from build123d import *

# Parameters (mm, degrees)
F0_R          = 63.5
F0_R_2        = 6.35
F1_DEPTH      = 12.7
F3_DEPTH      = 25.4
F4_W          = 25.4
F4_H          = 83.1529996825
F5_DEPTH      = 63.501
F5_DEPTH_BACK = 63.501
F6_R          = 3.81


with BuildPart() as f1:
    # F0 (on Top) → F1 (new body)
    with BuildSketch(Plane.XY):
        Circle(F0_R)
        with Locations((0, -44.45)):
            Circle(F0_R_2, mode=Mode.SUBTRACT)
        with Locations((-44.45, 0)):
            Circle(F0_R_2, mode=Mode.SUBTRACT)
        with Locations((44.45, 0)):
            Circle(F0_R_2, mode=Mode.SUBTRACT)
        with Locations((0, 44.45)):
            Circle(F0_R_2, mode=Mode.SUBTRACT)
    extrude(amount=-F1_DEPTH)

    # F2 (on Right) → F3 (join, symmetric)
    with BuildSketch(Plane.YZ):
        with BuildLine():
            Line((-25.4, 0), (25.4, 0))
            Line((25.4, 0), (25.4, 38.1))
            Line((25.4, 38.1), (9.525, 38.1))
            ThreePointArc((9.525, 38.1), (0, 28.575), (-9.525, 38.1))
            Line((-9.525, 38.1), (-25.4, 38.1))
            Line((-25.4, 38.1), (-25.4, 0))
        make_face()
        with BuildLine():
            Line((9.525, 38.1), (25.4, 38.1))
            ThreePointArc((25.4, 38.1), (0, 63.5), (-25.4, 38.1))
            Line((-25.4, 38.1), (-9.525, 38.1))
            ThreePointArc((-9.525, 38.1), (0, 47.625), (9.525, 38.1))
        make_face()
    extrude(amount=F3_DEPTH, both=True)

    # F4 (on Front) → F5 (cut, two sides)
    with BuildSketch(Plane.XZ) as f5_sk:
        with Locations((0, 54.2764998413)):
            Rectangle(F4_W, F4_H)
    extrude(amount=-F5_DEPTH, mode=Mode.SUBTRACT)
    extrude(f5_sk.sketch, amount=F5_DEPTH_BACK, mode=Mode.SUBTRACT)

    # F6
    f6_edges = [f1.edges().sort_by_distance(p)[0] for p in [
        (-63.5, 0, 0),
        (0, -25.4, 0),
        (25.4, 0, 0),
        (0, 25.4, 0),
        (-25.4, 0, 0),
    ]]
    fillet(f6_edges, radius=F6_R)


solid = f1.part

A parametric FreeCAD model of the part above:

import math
import FreeCAD as App
import Part
import Sketcher
from FreeCAD import Vector
Q = App.Units.Quantity


def edges_at(feature, points):
    """Names of the edges that pass closest to the given points."""
    edges = feature.Shape.Edges
    near = lambda p: min(range(len(edges)), key=lambda i: edges[i].distToShape(Part.Vertex(*p))[0])
    return sorted({f"Edge{near(p) + 1}" for p in points})


def add_polygon(sketch, points):
    """Adds a closed chain of lines whose ends are joined by coincident constraints."""
    first, n = sketch.GeometryCount, len(points)
    for a, b in zip(points, points[1:] + points[:1]):
        sketch.addGeometry(Part.LineSegment(App.Vector(*a, 0), App.Vector(*b, 0)), False)
    for i in range(n):
        sketch.addConstraint(Sketcher.Constraint("Coincident", first + i, 2, first + (i + 1) % n, 1))

doc = App.newDocument("Part")
params = doc.addObject("Spreadsheet::Sheet", "Params")
for row, (alias, value) in enumerate([
    ("sketch1_diameter", "5 in"),
    ("sketch1_diameter2", "0.5 in"),
    ("pad1_length", "0.5 in"),
    ("sketch2_radius", "1 in"),
    ("sketch2_diameter", "0.75 in"),
    ("sketch2_height", "1.5 in"),
    ("pad2_length", "2 in"),
    ("sketch3_width", "1 in"),
    ("fillet_radius", "0.15 in"),
], start=1):
    params.set(f"A{row}", alias)
    params.set(f"B{row}", "=" + value)
    params.setAlias(f"B{row}", alias)

body = doc.addObject("PartDesign::Body", "Body")

# Sketch on XY plane
sketch1 = body.newObject("Sketcher::SketchObject", "Sketch")
sketch1.AttachmentSupport = (doc.getObject("XY_Plane"), [""])
sketch1.MapMode = "FlatFace"
sketch1.addGeometry([
    Part.Circle(Vector(0, 0, 0), Vector(0, 0, 1), 64),  # 0
    Part.Circle(Vector(0, -44, 0), Vector(0, 0, 1), 6),  # 1
    Part.Circle(Vector(-44, 0, 0), Vector(0, 0, 1), 6),  # 2
    Part.Circle(Vector(44, 0, 0), Vector(0, 0, 1), 6),  # 3
    Part.Circle(Vector(0, 44, 0), Vector(0, 0, 1), 6),  # 4
], False)
sketch1.addConstraint([
    Sketcher.Constraint("Coincident", 0, 3, -1, 1),
    Sketcher.Constraint("Equal", 1, 2),
    Sketcher.Constraint("Equal", 2, 3),
    Sketcher.Constraint("Equal", 3, 4),
    Sketcher.Constraint("Symmetric", 2, 3, 3, 3, -1, 1),
    Sketcher.Constraint("Symmetric", 1, 3, 4, 3, -1, 1),
    Sketcher.Constraint("PointOnObject", 1, 3, -2),
    Sketcher.Constraint("PointOnObject", 2, 3, -1),
    Sketcher.Constraint("Diameter", 0, Q("5 in")),
    Sketcher.Constraint("Diameter", 1, Q("0.5 in")),
    Sketcher.Constraint("DistanceX", 2, 3, 3, 3, Q("3.5 in")),
    Sketcher.Constraint("DistanceY", 1, 3, 4, 3, Q("3.5 in")),
])
sketch1.setExpression("Constraints[8]", "Params.sketch1_diameter")
sketch1.setExpression("Constraints[9]", "Params.sketch1_diameter2")
pad1 = body.newObject("PartDesign::Pad", "Pad")
pad1.Profile = sketch1
pad1.setExpression("Length", "Params.pad1_length")
pad1.Reversed = True

# Sketch on YZ plane
sketch2 = body.newObject("Sketcher::SketchObject", "Sketch001")
sketch2.AttachmentSupport = (doc.getObject("YZ_Plane"), [""])
sketch2.MapMode = "FlatFace"
sketch2.addGeometry([
    Part.LineSegment(Vector(-25, 0, 0), Vector(25, 0, 0)),  # 0
    Part.LineSegment(Vector(25, 0, 0), Vector(25, 38, 0)),  # 1
    Part.ArcOfCircle(Part.Circle(Vector(0, 38, 0), Vector(0, 0, 1), 25), math.radians(0), math.radians(180)),  # 2
    Part.LineSegment(Vector(-25, 38, 0), Vector(-25, 0, 0)),  # 3
    Part.Circle(Vector(0, 38, 0), Vector(0, 0, 1), 10),  # 4
], False)
sketch2.addConstraint([
    Sketcher.Constraint("Coincident", 0, 2, 1, 1),
    Sketcher.Constraint("Tangent", 1, 2, 2, 1),
    Sketcher.Constraint("Tangent", 2, 2, 3, 1),
    Sketcher.Constraint("Coincident", 3, 2, 0, 1),
    Sketcher.Constraint("Horizontal", 0),
    Sketcher.Constraint("Vertical", 1),
    Sketcher.Constraint("Vertical", 3),
    Sketcher.Constraint("Coincident", 4, 3, 2, 3),
    Sketcher.Constraint("Symmetric", 0, 2, 3, 2, -1, 1),
    Sketcher.Constraint("Radius", 2, Q("1 in")),
    Sketcher.Constraint("Diameter", 4, Q("0.75 in")),
    Sketcher.Constraint("DistanceY", 1, 1, 1, 2, Q("1.5 in")),
])
sketch2.setExpression("Constraints[9]", "Params.sketch2_radius")
sketch2.setExpression("Constraints[10]", "Params.sketch2_diameter")
sketch2.setExpression("Constraints[11]", "Params.sketch2_height")
pad2 = body.newObject("PartDesign::Pad", "Pad001")
pad2.Profile = sketch2
pad2.setExpression("Length", "Params.pad2_length")
pad2.Midplane = True

# Sketch on XZ plane
sketch3 = body.newObject("Sketcher::SketchObject", "Sketch002")
sketch3.AttachmentSupport = (doc.getObject("XZ_Plane"), [""])
sketch3.MapMode = "FlatFace"
add_polygon(sketch3, [(-13, 96), (-13, 13), (13, 13), (13, 96)])  # lines 0-3
sketch3.addConstraint([
    Sketcher.Constraint("Vertical", 0),
    Sketcher.Constraint("Horizontal", 1),
    Sketcher.Constraint("Vertical", 2),
    Sketcher.Constraint("Horizontal", 3),
    Sketcher.Constraint("DistanceX", 1, 1, 1, 2, Q("1 in")),
    Sketcher.Constraint("DistanceX", 0, 2, -1, 1, Q("0.5 in")),
    Sketcher.Constraint("DistanceY", -1, 1, 0, 2, Q("0.5 in")),
    Sketcher.Constraint("DistanceY", 0, 2, 0, 1, Q("83.153 mm")),
])
sketch3.setExpression("Constraints[8]", "Params.sketch3_width")
pocket1 = body.newObject("PartDesign::Pocket", "Pocket")
pocket1.Profile = sketch3
pocket1.Type = "ThroughAll"
pocket1.Midplane = True
doc.recompute()

fillet = body.newObject("PartDesign::Fillet", "Fillet")
fillet.Base = (pocket1, edges_at(pocket1, [
    (-63.5, 0, 0),
    (0, -25.4, 0),
    (25.4, 0, 0),
    (0, 25.4, 0),
    (-25.4, 0, 0),
]))
fillet.setExpression("Radius", "Params.fillet_radius")

doc.recompute()
